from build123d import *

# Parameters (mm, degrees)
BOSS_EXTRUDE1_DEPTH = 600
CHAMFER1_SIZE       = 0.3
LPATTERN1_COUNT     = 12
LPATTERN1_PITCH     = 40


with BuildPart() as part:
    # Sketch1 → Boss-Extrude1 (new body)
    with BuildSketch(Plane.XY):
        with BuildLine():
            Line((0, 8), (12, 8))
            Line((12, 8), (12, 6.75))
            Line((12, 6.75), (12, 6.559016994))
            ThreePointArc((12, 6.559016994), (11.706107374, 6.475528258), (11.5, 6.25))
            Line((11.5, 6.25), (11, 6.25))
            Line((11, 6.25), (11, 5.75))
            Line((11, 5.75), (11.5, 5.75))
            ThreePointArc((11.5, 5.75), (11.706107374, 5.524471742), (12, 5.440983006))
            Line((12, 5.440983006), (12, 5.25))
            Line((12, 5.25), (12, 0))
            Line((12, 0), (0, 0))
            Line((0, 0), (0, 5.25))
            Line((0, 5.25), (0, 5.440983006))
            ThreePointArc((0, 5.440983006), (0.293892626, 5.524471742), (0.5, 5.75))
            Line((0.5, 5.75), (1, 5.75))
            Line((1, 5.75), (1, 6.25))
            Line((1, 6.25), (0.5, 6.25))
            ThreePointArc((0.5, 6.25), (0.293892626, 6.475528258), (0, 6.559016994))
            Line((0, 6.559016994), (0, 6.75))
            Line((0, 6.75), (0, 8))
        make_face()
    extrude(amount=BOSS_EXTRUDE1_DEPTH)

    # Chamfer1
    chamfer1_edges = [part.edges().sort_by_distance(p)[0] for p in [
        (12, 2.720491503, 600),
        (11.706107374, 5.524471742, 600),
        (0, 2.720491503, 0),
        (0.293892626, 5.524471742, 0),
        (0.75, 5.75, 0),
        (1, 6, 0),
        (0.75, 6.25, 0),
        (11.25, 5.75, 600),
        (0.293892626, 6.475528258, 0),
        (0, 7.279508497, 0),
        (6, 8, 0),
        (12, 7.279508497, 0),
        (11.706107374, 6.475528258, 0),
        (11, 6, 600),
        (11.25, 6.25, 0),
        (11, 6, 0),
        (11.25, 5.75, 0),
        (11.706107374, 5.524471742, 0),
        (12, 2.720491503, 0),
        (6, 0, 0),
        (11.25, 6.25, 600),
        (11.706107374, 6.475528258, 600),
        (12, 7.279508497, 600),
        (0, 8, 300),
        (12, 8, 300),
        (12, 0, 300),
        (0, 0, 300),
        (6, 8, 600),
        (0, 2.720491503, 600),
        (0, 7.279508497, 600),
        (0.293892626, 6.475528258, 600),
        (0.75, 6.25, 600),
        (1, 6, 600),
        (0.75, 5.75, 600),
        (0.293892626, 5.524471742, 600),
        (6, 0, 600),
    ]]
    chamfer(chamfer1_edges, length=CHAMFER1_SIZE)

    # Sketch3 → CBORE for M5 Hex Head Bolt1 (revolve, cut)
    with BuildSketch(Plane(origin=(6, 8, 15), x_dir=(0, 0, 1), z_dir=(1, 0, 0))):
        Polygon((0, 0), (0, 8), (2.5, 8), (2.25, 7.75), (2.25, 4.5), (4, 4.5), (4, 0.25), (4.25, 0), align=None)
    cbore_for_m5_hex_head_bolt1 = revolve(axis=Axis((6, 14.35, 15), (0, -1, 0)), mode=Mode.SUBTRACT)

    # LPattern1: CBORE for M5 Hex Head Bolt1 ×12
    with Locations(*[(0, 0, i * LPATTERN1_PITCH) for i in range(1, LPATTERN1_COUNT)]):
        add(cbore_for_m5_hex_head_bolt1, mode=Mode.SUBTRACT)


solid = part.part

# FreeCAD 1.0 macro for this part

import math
import FreeCAD as App
import Part
import Sketcher
from FreeCAD import Vector
Q = App.Units.Quantity


def edges_at(feature, points):
    """Names of the edges that pass closest to the given points."""
    edges = feature.Shape.Edges
    near = lambda p: min(range(len(edges)), key=lambda i: edges[i].distToShape(Part.Vertex(*p))[0])
    return sorted({f"Edge{near(p) + 1}" for p in points})


def add_polygon(sketch, points):
    """Adds a closed chain of lines whose ends are joined by coincident constraints."""
    first, n = sketch.GeometryCount, len(points)
    for a, b in zip(points, points[1:] + points[:1]):
        sketch.addGeometry(Part.LineSegment(App.Vector(*a, 0), App.Vector(*b, 0)), False)
    for i in range(n):
        sketch.addConstraint(Sketcher.Constraint("Coincident", first + i, 2, first + (i + 1) % n, 1))

doc = App.newDocument("Part")
body = doc.addObject("PartDesign::Body", "Body")

# Sketch on XY plane
sketch1 = body.newObject("Sketcher::SketchObject", "Sketch")
sketch1.AttachmentSupport = (doc.getObject("XY_Plane"), [""])
sketch1.MapMode = "FlatFace"
sketch1.addGeometry([
    Part.LineSegment(Vector(12, 8, 0), Vector(0, 8, 0)),  # 0
    Part.LineSegment(Vector(0, 8, 0), Vector(0, 6.6, 0)),  # 1
    Part.ArcOfCircle(Part.Circle(Vector(0, 6, 0), Vector(0, 0, 1), 0.6), math.radians(27), math.radians(90)),  # 2
    Part.LineSegment(Vector(0.5, 6.2, 0), Vector(1, 6.2, 0)),  # 3
    Part.LineSegment(Vector(1, 6.2, 0), Vector(1, 5.8, 0)),  # 4
    Part.LineSegment(Vector(1, 5.8, 0), Vector(0.5, 5.8, 0)),  # 5
    Part.ArcOfCircle(Part.Circle(Vector(0, 6, 0), Vector(0, 0, 1), 0.6), math.radians(-90), math.radians(-27)),  # 6
    Part.LineSegment(Vector(0, 5.4, 0), Vector(0, 0, 0)),  # 7
    Part.LineSegment(Vector(0, 0, 0), Vector(12, 0, 0)),  # 8
    Part.LineSegment(Vector(12, 0, 0), Vector(12, 5.4, 0)),  # 9
    Part.ArcOfCircle(Part.Circle(Vector(12, 6, 0), Vector(0, 0, 1), 0.6), math.radians(-153), math.radians(-90)),  # 10
    Part.LineSegment(Vector(11.5, 5.8, 0), Vector(11, 5.8, 0)),  # 11
    Part.LineSegment(Vector(11, 5.8, 0), Vector(11, 6.2, 0)),  # 12
    Part.LineSegment(Vector(11, 6.2, 0), Vector(11.5, 6.2, 0)),  # 13
    Part.ArcOfCircle(Part.Circle(Vector(12, 6, 0), Vector(0, 0, 1), 0.6), math.radians(90), math.radians(153)),  # 14
    Part.LineSegment(Vector(12, 6.6, 0), Vector(12, 8, 0)),  # 15
], False)
sketch1.addConstraint([
    Sketcher.Constraint("Coincident", 0, 2, 1, 1),
    Sketcher.Constraint("Coincident", 1, 2, 2, 2),
    Sketcher.Constraint("Coincident", 2, 1, 3, 1),
    Sketcher.Constraint("Coincident", 3, 2, 4, 1),
    Sketcher.Constraint("Coincident", 4, 2, 5, 1),
    Sketcher.Constraint("Coincident", 5, 2, 6, 2),
    Sketcher.Constraint("Coincident", 6, 1, 7, 1),
    Sketcher.Constraint("Coincident", 7, 2, 8, 1),
    Sketcher.Constraint("Coincident", 8, 2, 9, 1),
    Sketcher.Constraint("Coincident", 9, 2, 10, 2),
    Sketcher.Constraint("Coincident", 10, 1, 11, 1),
    Sketcher.Constraint("Coincident", 11, 2, 12, 1),
    Sketcher.Constraint("Coincident", 12, 2, 13, 1),
    Sketcher.Constraint("Coincident", 13, 2, 14, 2),
    Sketcher.Constraint("Coincident", 14, 1, 15, 1),
    Sketcher.Constraint("Coincident", 15, 2, 0, 1),
    Sketcher.Constraint("Horizontal", 0),
    Sketcher.Constraint("Vertical", 1),
    Sketcher.Constraint("Horizontal", 3),
    Sketcher.Constraint("Vertical", 4),
    Sketcher.Constraint("Horizontal", 5),
    Sketcher.Constraint("Vertical", 7),
    Sketcher.Constraint("Horizontal", 8),
    Sketcher.Constraint("Vertical", 9),
    Sketcher.Constraint("Horizontal", 11),
    Sketcher.Constraint("Vertical", 12),
    Sketcher.Constraint("Horizontal", 13),
    Sketcher.Constraint("Vertical", 15),
    Sketcher.Constraint("Coincident", 7, 2, -1, 1),
    Sketcher.Constraint("Coincident", 6, 3, 2, 3),
    Sketcher.Constraint("Coincident", 14, 3, 10, 3),
    Sketcher.Constraint("Equal", 2, 6),
    Sketcher.Constraint("Equal", 6, 10),
    Sketcher.Constraint("Equal", 10, 14),
    Sketcher.Constraint("PointOnObject", 2, 3, -2),
    Sketcher.Constraint("PointOnObject", 0, 2, -2),
    Sketcher.Constraint("Horizontal", 6, 3, 10, 3),
    Sketcher.Constraint("Horizontal", 5, 2, 10, 1),
    Sketcher.Constraint("Horizontal", 3, 2, 12, 2),
    Sketcher.Constraint("Vertical", 2, 1, 5, 2),
    Sketcher.Constraint("Vertical", 14, 3, 8, 2),
    Sketcher.Constraint("Vertical", 9, 2, 14, 1),
    Sketcher.Constraint("Equal", 5, 11),
    Sketcher.Constraint("Equal", 13, 4),
    Sketcher.Constraint("DistanceX", 0, 2, 0, 1, Q("12 mm")),
    Sketcher.Constraint("DistanceX", 3, 1, 3, 2, Q("0.5 mm")),
    Sketcher.Constraint("DistanceY", -1, 1, 2, 3, Q("6 mm")),
    Sketcher.Constraint("DistanceY", -1, 1, 0, 2, Q("8 mm")),
    Sketcher.Constraint("DistanceX", -1, 1, 3, 2, Q("1 mm")),
])
pad1 = body.newObject("PartDesign::Pad", "Pad")
pad1.Profile = sketch1
pad1.Length = 600
doc.recompute()

chamfer = body.newObject("PartDesign::Chamfer", "Chamfer")
chamfer.Base = (pad1, edges_at(pad1, [
    (12, 2.72, 600),
    (11.706, 5.524, 600),
    (0, 2.72, 0),
    (0.294, 5.524, 0),
    (0.75, 5.75, 0),
    (1, 6, 0),
    (0.75, 6.25, 0),
    (11.25, 5.75, 600),
    (0.294, 6.476, 0),
    (0, 7.28, 0),
    (6, 8, 0),
    (12, 7.28, 0),
    (11.706, 6.476, 0),
    (11, 6, 600),
    (11.25, 6.25, 0),
    (11, 6, 0),
    (11.25, 5.75, 0),
    (11.706, 5.524, 0),
    (12, 2.72, 0),
    (6, 0, 0),
    (11.25, 6.25, 600),
    (11.706, 6.476, 600),
    (12, 7.28, 600),
    (0, 8, 300),
    (12, 8, 300),
    (12, 0, 300),
    (0, 0, 300),
    (6, 8, 600),
    (0, 2.72, 600),
    (0, 7.28, 600),
    (0.294, 6.476, 600),
    (0.75, 6.25, 600),
    (1, 6, 600),
    (0.75, 5.75, 600),
    (0.294, 5.524, 600),
    (6, 0, 600),
]))
chamfer.Size = 0.3

# Sketch on YZ plane
sketch2 = body.newObject("Sketcher::SketchObject", "Sketch001")
sketch2.AttachmentSupport = (doc.getObject("YZ_Plane"), [""])
sketch2.MapMode = "FlatFace"
sketch2.AttachmentOffset = App.Placement(Vector(0, 0, 6), App.Rotation())
add_polygon(sketch2, [(0, 15), (8, 15), (8, 19.25), (7.75, 19), (3.5, 19), (3.5, 17.25), (0.25, 17.25), (0, 17.5)])  # lines 0-7
sketch2.addGeometry(Part.LineSegment(Vector(8, 15, 0), Vector(0, 15, 0)), True)  # axis
sketch2.addConstraint([
    Sketcher.Constraint("Horizontal", 0),
    Sketcher.Constraint("Vertical", 1),
    Sketcher.Constraint("Horizontal", 3),
    Sketcher.Constraint("Vertical", 4),
    Sketcher.Constraint("Horizontal", 5),
    Sketcher.Constraint("Vertical", 7),
    Sketcher.Constraint("Horizontal", 8),
    Sketcher.Constraint("Coincident", 8, 1, 0, 2),
    Sketcher.Constraint("PointOnObject", 6, 2, -2),
    Sketcher.Constraint("PointOnObject", 8, 2, -2),
    Sketcher.Constraint("Perpendicular", 2, 6),
    Sketcher.Constraint("Equal", 3, 1),
    Sketcher.Constraint("Equal", 2, 6),
    Sketcher.Constraint("DistanceX", 0, 1, 0, 2, Q("8 mm")),
    Sketcher.Constraint("Angle", 2, Q("-135 deg")),
    Sketcher.Constraint("DistanceY", 7, 2, 7, 1, Q("2.5 mm")),
    Sketcher.Constraint("DistanceY", -1, 1, 0, 2, Q("15 mm")),
    Sketcher.Constraint("DistanceY", -1, 1, 2, 2, Q("19 mm")),
    Sketcher.Constraint("DistanceY", 4, 2, 1, 2, Q("2 mm")),
])
groove = body.newObject("PartDesign::Groove", "Groove")
groove.Profile = sketch2
groove.ReferenceAxis = (sketch2, ["Axis0"])
groove.Angle = 360
doc.recompute()

linearpattern = body.newObject("PartDesign::LinearPattern", "LinearPattern")
linearpattern.Originals = [groove]
linearpattern.Direction = (doc.getObject("Z_Axis"), [""])
linearpattern.Mode = "offset"
linearpattern.Offset = 40
linearpattern.Occurrences = 12
body.Tip = linearpattern

doc.recompute()
